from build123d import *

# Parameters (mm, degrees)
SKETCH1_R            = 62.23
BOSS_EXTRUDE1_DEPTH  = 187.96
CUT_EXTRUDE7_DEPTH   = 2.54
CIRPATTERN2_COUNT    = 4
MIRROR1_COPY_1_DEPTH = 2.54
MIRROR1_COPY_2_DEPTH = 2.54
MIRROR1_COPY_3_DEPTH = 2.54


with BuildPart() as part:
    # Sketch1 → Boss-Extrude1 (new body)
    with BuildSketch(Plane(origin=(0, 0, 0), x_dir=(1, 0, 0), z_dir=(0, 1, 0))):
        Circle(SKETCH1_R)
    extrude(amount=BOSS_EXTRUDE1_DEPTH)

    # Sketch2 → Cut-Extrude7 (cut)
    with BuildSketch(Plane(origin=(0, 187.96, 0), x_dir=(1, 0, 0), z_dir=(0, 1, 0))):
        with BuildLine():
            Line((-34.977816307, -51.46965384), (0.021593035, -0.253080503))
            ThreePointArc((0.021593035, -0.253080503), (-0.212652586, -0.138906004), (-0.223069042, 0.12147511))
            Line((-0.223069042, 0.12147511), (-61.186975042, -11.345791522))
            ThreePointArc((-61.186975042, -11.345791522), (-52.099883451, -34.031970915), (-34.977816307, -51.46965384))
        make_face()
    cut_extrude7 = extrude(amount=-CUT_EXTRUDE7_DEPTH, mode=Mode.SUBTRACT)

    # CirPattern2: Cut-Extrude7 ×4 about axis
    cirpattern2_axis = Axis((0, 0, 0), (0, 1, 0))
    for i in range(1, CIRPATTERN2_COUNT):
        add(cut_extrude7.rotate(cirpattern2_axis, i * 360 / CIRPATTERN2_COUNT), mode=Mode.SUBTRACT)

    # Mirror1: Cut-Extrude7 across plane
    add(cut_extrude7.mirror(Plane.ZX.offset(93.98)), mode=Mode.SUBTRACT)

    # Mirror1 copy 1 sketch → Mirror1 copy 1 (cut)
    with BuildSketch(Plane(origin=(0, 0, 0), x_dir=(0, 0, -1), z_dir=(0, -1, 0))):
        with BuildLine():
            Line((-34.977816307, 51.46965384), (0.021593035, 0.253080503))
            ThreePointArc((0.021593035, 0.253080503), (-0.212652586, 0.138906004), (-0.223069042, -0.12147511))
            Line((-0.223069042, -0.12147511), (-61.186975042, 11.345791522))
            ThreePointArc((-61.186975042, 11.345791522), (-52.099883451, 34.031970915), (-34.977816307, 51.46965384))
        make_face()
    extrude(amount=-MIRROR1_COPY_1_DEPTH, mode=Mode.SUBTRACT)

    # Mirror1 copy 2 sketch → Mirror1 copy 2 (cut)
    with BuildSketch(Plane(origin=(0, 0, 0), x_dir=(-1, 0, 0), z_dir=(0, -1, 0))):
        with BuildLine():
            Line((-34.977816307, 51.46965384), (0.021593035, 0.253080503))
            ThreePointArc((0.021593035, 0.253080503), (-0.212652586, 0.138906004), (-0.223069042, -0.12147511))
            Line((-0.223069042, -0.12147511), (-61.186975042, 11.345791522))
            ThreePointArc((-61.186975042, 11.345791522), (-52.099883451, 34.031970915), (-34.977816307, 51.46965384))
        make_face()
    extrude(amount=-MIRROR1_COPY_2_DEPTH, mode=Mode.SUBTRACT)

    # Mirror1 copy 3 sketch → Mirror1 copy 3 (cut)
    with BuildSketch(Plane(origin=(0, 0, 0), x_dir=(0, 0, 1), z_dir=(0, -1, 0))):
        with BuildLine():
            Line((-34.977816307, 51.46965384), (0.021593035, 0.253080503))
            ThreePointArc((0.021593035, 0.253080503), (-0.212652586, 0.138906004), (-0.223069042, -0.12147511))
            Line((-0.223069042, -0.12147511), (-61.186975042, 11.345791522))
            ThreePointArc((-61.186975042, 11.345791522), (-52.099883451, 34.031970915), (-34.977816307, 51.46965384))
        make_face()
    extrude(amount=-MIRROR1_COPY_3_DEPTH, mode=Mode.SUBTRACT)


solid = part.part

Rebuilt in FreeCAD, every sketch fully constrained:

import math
import FreeCAD as App
import Part
import Sketcher
from FreeCAD import Vector
Q = App.Units.Quantity

doc = App.newDocument("Part")
params = doc.addObject("Spreadsheet::Sheet", "Params")
for row, (alias, value) in enumerate([
    ("sketch1_diameter", "4.9 in"),
    ("pad1_length", "7.4 in"),
    ("sketch2_radius", "0.01 in"),
    ("sketch2_radius2", "2.45 in"),
    ("pocket1_length", "0.1 in"),
    ("sketch3_radius", "2.45 in"),
    ("sketch3_radius2", "0.01 in"),
    ("pocket2_length", "0.1 in"),
    ("sketch4_radius", "2.45 in"),
    ("sketch4_radius2", "0.01 in"),
    ("pocket3_length", "0.1 in"),
    ("sketch5_radius", "2.45 in"),
    ("sketch5_radius2", "0.01 in"),
    ("pocket4_length", "0.1 in"),
], start=1):
    params.set(f"A{row}", alias)
    params.set(f"B{row}", "=" + value)
    params.setAlias(f"B{row}", alias)

body = doc.addObject("PartDesign::Body", "Body")

# Sketch on XZ plane
sketch1 = doc.addObject("Sketcher::SketchObject", "Sketch")
body.addObject(sketch1)
sketch1.AttachmentSupport = (doc.XZ_Plane, [""])
sketch1.MapMode = "FlatFace"
sketch1.addGeometry(Part.Circle(Vector(0, 0, 0), Vector(0, 0, 1), 62.23), False)
sketch1.addConstraint(Sketcher.Constraint("Coincident", 0, 3, -1, 1))
sketch1.addConstraint(Sketcher.Constraint("Diameter", 0, Q("4.9 in")))
sketch1.setExpression("Constraints[1]", "Params.sketch1_diameter")
pad1 = doc.addObject("PartDesign::Pad", "Pad")
body.addObject(pad1)
pad1.Profile = sketch1
pad1.setExpression("Length", "Params.pad1_length")
pad1.Reversed = True

# Sketch on XZ plane
sketch2 = doc.addObject("Sketcher::SketchObject", "Sketch001")
body.addObject(sketch2)
sketch2.AttachmentSupport = (doc.XZ_Plane, [""])
sketch2.MapMode = "FlatFace"
sketch2.AttachmentOffset = App.Placement(Vector(0, 0, -7.4 * 25.4), App.Rotation())
sketch2.addGeometry(Part.LineSegment(Vector(-34.977816, 51.469654, 0), Vector(0.021593, 0.253081, 0)), False)
sketch2.addGeometry(Part.ArcOfCircle(Part.Circle(Vector(0, 0, 0), Vector(0, 0, 1), 0.254), math.radians(85.123288), math.radians(208.571069)), False)
sketch2.addGeometry(Part.LineSegment(Vector(-0.223069, -0.121475, 0), Vector(-61.186975, 11.345792, 0)), False)
sketch2.addGeometry(Part.ArcOfCircle(Part.Circle(Vector(0, 0, 0), Vector(0, 0, 1), 62.23), math.radians(124.199296), math.radians(169.495061)), False)
sketch2.addConstraint(Sketcher.Constraint("Coincident", 0, 2, 1, 1))
sketch2.addConstraint(Sketcher.Constraint("Coincident", 1, 2, 2, 1))
sketch2.addConstraint(Sketcher.Constraint("Coincident", 2, 2, 3, 2))
sketch2.addConstraint(Sketcher.Constraint("Coincident", 3, 1, 0, 1))
sketch2.addConstraint(Sketcher.Constraint("Coincident", 1, 3, -1, 1))
sketch2.addConstraint(Sketcher.Constraint("Coincident", 3, 3, -1, 1))
sketch2.addConstraint(Sketcher.Constraint("Radius", 1, Q("0.01 in")))
sketch2.addConstraint(Sketcher.Constraint("Radius", 3, Q("2.45 in")))
sketch2.addConstraint(Sketcher.Constraint("DistanceY", -1, 1, 0, 2, 0.253081))
sketch2.addConstraint(Sketcher.Constraint("DistanceX", 1, 2, -1, 1, 0.223069))
sketch2.addConstraint(Sketcher.Constraint("DistanceY", -1, 1, 2, 2, 11.345792))
sketch2.addConstraint(Sketcher.Constraint("DistanceX", 2, 2, 3, 1, 26.209159))
sketch2.setExpression("Constraints[6]", "Params.sketch2_radius")
sketch2.setExpression("Constraints[7]", "Params.sketch2_radius2")
pocket1 = doc.addObject("PartDesign::Pocket", "Pocket")
body.addObject(pocket1)
pocket1.Profile = sketch2
pocket1.setExpression("Length", "Params.pocket1_length")
pocket1.Reversed = True
doc.recompute()

polarpattern = doc.addObject("PartDesign::PolarPattern", "PolarPattern")
body.addObject(polarpattern)
polarpattern.Originals = [pocket1]
polarpattern.Axis = (doc.Y_Axis, [""])
polarpattern.Angle = 360
polarpattern.Occurrences = 4
body.Tip = polarpattern
doc.recompute()

datumplane = doc.addObject("PartDesign::Plane", "DatumPlane")
body.addObject(datumplane)
datumplane.AttachmentSupport = (doc.XZ_Plane, [""])
datumplane.MapMode = "FlatFace"
datumplane.AttachmentOffset = App.Placement(Vector(0, 0, -3.7 * 25.4), App.Rotation())
mirrored = doc.addObject("PartDesign::Mirrored", "Mirrored")
body.addObject(mirrored)
mirrored.Originals = [pocket1]
mirrored.MirrorPlane = (datumplane, [""])
body.Tip = mirrored

# Sketch on XZ plane
sketch3 = doc.addObject("Sketcher::SketchObject", "Sketch002")
body.addObject(sketch3)
sketch3.AttachmentSupport = (doc.XZ_Plane, [""])
sketch3.MapMode = "FlatFace"
sketch3.addGeometry(Part.LineSegment(Vector(0.253081, -0.021593, 0), Vector(51.469654, 34.977816, 0)), False)
sketch3.addGeometry(Part.ArcOfCircle(Part.Circle(Vector(0, 0, 0), Vector(0, 0, 1), 62.23), math.radians(34.199296), math.radians(79.495061)), False)
sketch3.addGeometry(Part.LineSegment(Vector(11.345792, 61.186975, 0), Vector(-0.121475, 0.223069, 0)), False)
sketch3.addGeometry(Part.ArcOfCircle(Part.Circle(Vector(0, 0, 0), Vector(0, 0, 1), 0.254), math.radians(-4.876712), math.radians(118.571069)), False)
sketch3.addConstraint(Sketcher.Constraint("Coincident", 0, 2, 1, 1))
sketch3.addConstraint(Sketcher.Constraint("Coincident", 1, 2, 2, 1))
sketch3.addConstraint(Sketcher.Constraint("Coincident", 2, 2, 3, 2))
sketch3.addConstraint(Sketcher.Constraint("Coincident", 3, 1, 0, 1))
sketch3.addConstraint(Sketcher.Constraint("Coincident", 1, 3, -1, 1))
sketch3.addConstraint(Sketcher.Constraint("Coincident", 3, 3, -1, 1))
sketch3.addConstraint(Sketcher.Constraint("Equal", 0, 2))
sketch3.addConstraint(Sketcher.Constraint("Radius", 1, Q("2.45 in")))
sketch3.addConstraint(Sketcher.Constraint("Radius", 3, Q("0.01 in")))
sketch3.addConstraint(Sketcher.Constraint("DistanceX", -1, 1, 1, 2, 11.345792))
sketch3.addConstraint(Sketcher.Constraint("DistanceY", -1, 1, 2, 2, 0.223069))
sketch3.addConstraint(Sketcher.Constraint("DistanceY", 0, 2, 1, 2, 26.209159))
sketch3.setExpression("Constraints[7]", "Params.sketch3_radius")
sketch3.setExpression("Constraints[8]", "Params.sketch3_radius2")
pocket2 = doc.addObject("PartDesign::Pocket", "Pocket001")
body.addObject(pocket2)
pocket2.Profile = sketch3
pocket2.setExpression("Length", "Params.pocket2_length")

# Sketch on XZ plane
sketch4 = doc.addObject("Sketcher::SketchObject", "Sketch003")
body.addObject(sketch4)
sketch4.AttachmentSupport = (doc.XZ_Plane, [""])
sketch4.MapMode = "FlatFace"
sketch4.addGeometry(Part.LineSegment(Vector(-0.021593, -0.253081, 0), Vector(34.977816, -51.469654, 0)), False)
sketch4.addGeometry(Part.ArcOfCircle(Part.Circle(Vector(0, 0, 0), Vector(0, 0, 1), 62.23), math.radians(-55.800704), math.radians(-10.504939)), False)
sketch4.addGeometry(Part.LineSegment(Vector(61.186975, -11.345792, 0), Vector(0.223069, 0.121475, 0)), False)
sketch4.addGeometry(Part.ArcOfCircle(Part.Circle(Vector(0, 0, 0), Vector(0, 0, 1), 0.254), math.radians(-94.876712), math.radians(28.571069)), False)
sketch4.addConstraint(Sketcher.Constraint("Coincident", 0, 2, 1, 1))
sketch4.addConstraint(Sketcher.Constraint("Coincident", 1, 2, 2, 1))
sketch4.addConstraint(Sketcher.Constraint("Coincident", 2, 2, 3, 2))
sketch4.addConstraint(Sketcher.Constraint("Coincident", 3, 1, 0, 1))
sketch4.addConstraint(Sketcher.Constraint("Coincident", 1, 3, -1, 1))
sketch4.addConstraint(Sketcher.Constraint("Coincident", 3, 3, -1, 1))
sketch4.addConstraint(Sketcher.Constraint("Equal", 0, 2))
sketch4.addConstraint(Sketcher.Constraint("Radius", 1, Q("2.45 in")))
sketch4.addConstraint(Sketcher.Constraint("Radius", 3, Q("0.01 in")))
sketch4.addConstraint(Sketcher.Constraint("DistanceY", 1, 2, -1, 1, 11.345792))
sketch4.addConstraint(Sketcher.Constraint("DistanceX", -1, 1, 2, 2, 0.223069))
sketch4.addConstraint(Sketcher.Constraint("DistanceX", 0, 2, 1, 2, 26.209159))
sketch4.setExpression("Constraints[7]", "Params.sketch4_radius")
sketch4.setExpression("Constraints[8]", "Params.sketch4_radius2")
pocket3 = doc.addObject("PartDesign::Pocket", "Pocket002")
body.addObject(pocket3)
pocket3.Profile = sketch4
pocket3.setExpression("Length", "Params.pocket3_length")

# Sketch on XZ plane
sketch5 = doc.addObject("Sketcher::SketchObject", "Sketch004")
body.addObject(sketch5)
sketch5.AttachmentSupport = (doc.XZ_Plane, [""])
sketch5.MapMode = "FlatFace"
sketch5.addGeometry(Part.LineSegment(Vector(-0.253081, 0.021593, 0), Vector(-51.469654, -34.977816, 0)), False)
sketch5.addGeometry(Part.ArcOfCircle(Part.Circle(Vector(0, 0, 0), Vector(0, 0, 1), 62.23), math.radians(-145.800704), math.radians(-100.504939)), False)
sketch5.addGeometry(Part.LineSegment(Vector(-11.345792, -61.186975, 0), Vector(0.121475, -0.223069, 0)), False)
sketch5.addGeometry(Part.ArcOfCircle(Part.Circle(Vector(0, 0, 0), Vector(0, 0, 1), 0.254), math.radians(175.123288), math.radians(298.571069)), False)
sketch5.addConstraint(Sketcher.Constraint("Coincident", 0, 2, 1, 1))
sketch5.addConstraint(Sketcher.Constraint("Coincident", 1, 2, 2, 1))
sketch5.addConstraint(Sketcher.Constraint("Coincident", 2, 2, 3, 2))
sketch5.addConstraint(Sketcher.Constraint("Coincident", 3, 1, 0, 1))
sketch5.addConstraint(Sketcher.Constraint("Coincident", 1, 3, -1, 1))
sketch5.addConstraint(Sketcher.Constraint("Coincident", 3, 3, -1, 1))
sketch5.addConstraint(Sketcher.Constraint("Equal", 0, 2))
sketch5.addConstraint(Sketcher.Constraint("Radius", 1, Q("2.45 in")))
sketch5.addConstraint(Sketcher.Constraint("Radius", 3, Q("0.01 in")))
sketch5.addConstraint(Sketcher.Constraint("DistanceX", 1, 2, -1, 1, 11.345792))
sketch5.addConstraint(Sketcher.Constraint("DistanceY", 2, 2, -1, 1, 0.223069))
sketch5.addConstraint(Sketcher.Constraint("DistanceY", 1, 2, 0, 2, 26.209159))
sketch5.setExpression("Constraints[7]", "Params.sketch5_radius")
sketch5.setExpression("Constraints[8]", "Params.sketch5_radius2")
pocket4 = doc.addObject("PartDesign::Pocket", "Pocket003")
body.addObject(pocket4)
pocket4.Profile = sketch5
pocket4.setExpression("Length", "Params.pocket4_length")

doc.recompute()
